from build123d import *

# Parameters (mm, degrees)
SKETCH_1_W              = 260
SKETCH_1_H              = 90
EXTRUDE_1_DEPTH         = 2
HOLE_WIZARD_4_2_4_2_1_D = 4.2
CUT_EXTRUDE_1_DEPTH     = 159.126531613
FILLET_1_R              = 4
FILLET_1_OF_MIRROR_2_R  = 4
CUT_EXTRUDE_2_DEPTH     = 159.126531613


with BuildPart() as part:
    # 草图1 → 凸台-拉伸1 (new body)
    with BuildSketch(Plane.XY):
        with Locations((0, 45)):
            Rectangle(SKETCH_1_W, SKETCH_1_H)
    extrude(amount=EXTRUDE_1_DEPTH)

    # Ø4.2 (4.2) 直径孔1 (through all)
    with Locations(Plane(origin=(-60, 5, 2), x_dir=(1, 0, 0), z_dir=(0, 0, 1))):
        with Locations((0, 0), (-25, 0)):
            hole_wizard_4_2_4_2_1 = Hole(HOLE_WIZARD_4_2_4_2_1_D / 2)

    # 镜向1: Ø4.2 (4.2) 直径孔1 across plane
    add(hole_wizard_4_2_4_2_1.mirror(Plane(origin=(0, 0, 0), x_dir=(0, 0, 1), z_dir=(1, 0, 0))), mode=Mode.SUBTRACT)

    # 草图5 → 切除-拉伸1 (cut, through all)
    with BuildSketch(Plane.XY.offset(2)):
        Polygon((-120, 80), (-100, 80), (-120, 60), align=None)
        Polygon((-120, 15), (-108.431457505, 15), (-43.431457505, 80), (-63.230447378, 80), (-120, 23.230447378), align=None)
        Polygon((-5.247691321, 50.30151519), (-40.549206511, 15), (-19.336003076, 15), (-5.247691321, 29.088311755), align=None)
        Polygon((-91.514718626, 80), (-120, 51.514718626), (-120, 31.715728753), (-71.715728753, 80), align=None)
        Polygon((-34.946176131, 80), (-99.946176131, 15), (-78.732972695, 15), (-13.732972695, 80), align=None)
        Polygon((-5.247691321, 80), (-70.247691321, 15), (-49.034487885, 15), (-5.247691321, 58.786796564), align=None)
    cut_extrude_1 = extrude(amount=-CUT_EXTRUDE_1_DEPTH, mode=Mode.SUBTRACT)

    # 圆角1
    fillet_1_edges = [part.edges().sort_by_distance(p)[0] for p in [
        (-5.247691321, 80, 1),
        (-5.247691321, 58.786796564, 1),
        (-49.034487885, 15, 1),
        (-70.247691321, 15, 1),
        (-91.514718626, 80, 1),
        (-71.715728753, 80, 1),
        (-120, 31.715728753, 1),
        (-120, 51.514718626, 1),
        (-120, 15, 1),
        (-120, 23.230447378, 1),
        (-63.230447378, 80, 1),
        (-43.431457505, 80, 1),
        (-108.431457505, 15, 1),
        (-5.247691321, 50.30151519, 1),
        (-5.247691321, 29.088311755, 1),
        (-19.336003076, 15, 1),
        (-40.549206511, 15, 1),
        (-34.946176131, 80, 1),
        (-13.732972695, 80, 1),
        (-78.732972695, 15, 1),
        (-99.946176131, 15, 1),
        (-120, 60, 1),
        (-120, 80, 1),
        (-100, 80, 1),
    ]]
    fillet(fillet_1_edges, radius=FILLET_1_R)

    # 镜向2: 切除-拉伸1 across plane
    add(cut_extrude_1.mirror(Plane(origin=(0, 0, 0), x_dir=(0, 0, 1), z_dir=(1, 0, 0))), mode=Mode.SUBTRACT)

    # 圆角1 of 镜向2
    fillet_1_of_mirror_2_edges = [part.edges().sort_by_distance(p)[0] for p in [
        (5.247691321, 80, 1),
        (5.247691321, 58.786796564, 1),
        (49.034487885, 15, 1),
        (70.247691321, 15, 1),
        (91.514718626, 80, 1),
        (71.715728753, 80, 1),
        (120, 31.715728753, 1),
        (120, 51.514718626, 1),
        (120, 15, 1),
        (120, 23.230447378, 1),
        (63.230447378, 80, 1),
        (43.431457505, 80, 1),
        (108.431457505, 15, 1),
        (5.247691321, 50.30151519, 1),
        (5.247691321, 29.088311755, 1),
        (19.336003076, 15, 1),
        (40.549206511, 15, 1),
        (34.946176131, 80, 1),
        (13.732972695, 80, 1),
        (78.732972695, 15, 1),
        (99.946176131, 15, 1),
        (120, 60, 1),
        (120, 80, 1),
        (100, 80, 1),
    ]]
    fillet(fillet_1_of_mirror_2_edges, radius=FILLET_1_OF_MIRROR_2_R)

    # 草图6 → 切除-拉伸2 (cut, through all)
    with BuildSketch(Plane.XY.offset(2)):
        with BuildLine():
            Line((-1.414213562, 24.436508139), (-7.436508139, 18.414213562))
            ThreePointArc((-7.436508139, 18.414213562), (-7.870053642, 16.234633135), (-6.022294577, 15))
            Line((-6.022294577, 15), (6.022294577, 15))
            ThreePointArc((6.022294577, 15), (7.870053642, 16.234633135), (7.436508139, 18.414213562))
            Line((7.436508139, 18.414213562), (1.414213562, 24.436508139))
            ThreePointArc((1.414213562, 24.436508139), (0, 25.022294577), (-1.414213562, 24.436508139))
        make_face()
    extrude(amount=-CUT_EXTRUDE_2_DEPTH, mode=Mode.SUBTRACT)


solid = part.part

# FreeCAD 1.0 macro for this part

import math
import FreeCAD as App
import Part
import Sketcher

V = App.Vector


def edges_at(feature, points):
    """Names of the edges that pass closest to the given points."""
    edges = feature.Shape.Edges
    near = lambda p: min(range(len(edges)), key=lambda i: edges[i].distToShape(Part.Vertex(*p))[0])
    return sorted({f"Edge{near(p) + 1}" for p in points})


def add_polygon(sketch, points):
    """Adds a closed chain of lines whose ends are joined by coincident constraints."""
    first, n = sketch.GeometryCount, len(points)
    for a, b in zip(points, points[1:] + points[:1]):
        sketch.addGeometry(Part.LineSegment(App.Vector(*a, 0), App.Vector(*b, 0)), False)
    for i in range(n):
        sketch.addConstraint(Sketcher.Constraint("Coincident", first + i, 2, first + (i + 1) % n, 1))

doc = App.newDocument("Part")
body = doc.addObject("PartDesign::Body", "Body")

# Sketch on XY plane
sketch1 = doc.addObject("Sketcher::SketchObject", "Sketch")
body.addObject(sketch1)
sketch1.AttachmentSupport = (doc.XY_Plane, [""])
sketch1.MapMode = "FlatFace"
add_polygon(sketch1, [(-130, 90), (-130, 0), (130, 0), (130, 90)])  # lines 0-3
sketch1.addConstraint(Sketcher.Constraint("Vertical", 0))
sketch1.addConstraint(Sketcher.Constraint("Horizontal", 1))
sketch1.addConstraint(Sketcher.Constraint("Vertical", 2))
sketch1.addConstraint(Sketcher.Constraint("Horizontal", 3))
sketch1.addConstraint(Sketcher.Constraint("Symmetric", 0, 2, 1, 2, -1, 1))
sketch1.addConstraint(Sketcher.Constraint("DistanceX", 1, 1, 1, 2, 260.0))
sketch1.addConstraint(Sketcher.Constraint("DistanceY", 0, 2, 0, 1, 90.0))
pad1 = doc.addObject("PartDesign::Pad", "Pad")
body.addObject(pad1)
pad1.Profile = sketch1
pad1.Length = 2

# Sketch on XY plane
sketch2 = doc.addObject("Sketcher::SketchObject", "Sketch001")
body.addObject(sketch2)
sketch2.AttachmentSupport = (doc.XY_Plane, [""])
sketch2.MapMode = "FlatFace"
sketch2.AttachmentOffset = App.Placement(V(0, 0, 2), App.Rotation())
sketch2.addGeometry(Part.Circle(V(-60, 5, 0), V(0, 0, 1), 2.1), False)
sketch2.addGeometry(Part.Circle(V(-85, 5, 0), V(0, 0, 1), 2.1), False)
sketch2.addConstraint(Sketcher.Constraint("Equal", 0, 1))
sketch2.addConstraint(Sketcher.Constraint("Horizontal", 0, 3, 1, 3))
sketch2.addConstraint(Sketcher.Constraint("Diameter", 0, 4.2))
sketch2.addConstraint(Sketcher.Constraint("DistanceX", 0, 3, -1, 1, 60.0))
sketch2.addConstraint(Sketcher.Constraint("DistanceY", -1, 1, 0, 3, 5.0))
sketch2.addConstraint(Sketcher.Constraint("DistanceX", 1, 3, -1, 1, 85.0))
doc.recompute()
hole = doc.addObject("PartDesign::Hole", "Hole")
body.addObject(hole)
hole.Profile = sketch2
hole.ThreadType = "None"
hole.Diameter = 4.2
hole.DepthType = "ThroughAll"
doc.recompute()

mirrored = doc.addObject("PartDesign::Mirrored", "Mirrored")
body.addObject(mirrored)
mirrored.Originals = [hole]
mirrored.MirrorPlane = (doc.YZ_Plane, [""])
body.Tip = mirrored

# Sketch on XY plane
sketch3 = doc.addObject("Sketcher::SketchObject", "Sketch002")
body.addObject(sketch3)
sketch3.AttachmentSupport = (doc.XY_Plane, [""])
sketch3.MapMode = "FlatFace"
sketch3.AttachmentOffset = App.Placement(V(0, 0, 2), App.Rotation())
add_polygon(sketch3, [(-100, 80), (-120, 80), (-120, 60)])  # lines 0-2
add_polygon(sketch3, [(-120, 15), (-108, 15), (-43, 80), (-63, 80), (-120, 23)])  # lines 3-7
add_polygon(sketch3, [(-5, 50), (-41, 15), (-19, 15), (-5, 29)])  # lines 8-11
add_polygon(sketch3, [(-92, 80), (-120, 52), (-120, 32), (-72, 80)])  # lines 12-15
add_polygon(sketch3, [(-35, 80), (-100, 15), (-79, 15), (-14, 80)])  # lines 16-19
add_polygon(sketch3, [(-5, 80), (-70, 15), (-49, 15), (-5, 59)])  # lines 20-23
sketch3.addConstraint(Sketcher.Constraint("Horizontal", 0))
sketch3.addConstraint(Sketcher.Constraint("Vertical", 1))
sketch3.addConstraint(Sketcher.Constraint("Horizontal", 3))
sketch3.addConstraint(Sketcher.Constraint("Horizontal", 5))
sketch3.addConstraint(Sketcher.Constraint("Vertical", 7))
sketch3.addConstraint(Sketcher.Constraint("Horizontal", 9))
sketch3.addConstraint(Sketcher.Constraint("Vertical", 11))
sketch3.addConstraint(Sketcher.Constraint("Vertical", 13))
sketch3.addConstraint(Sketcher.Constraint("Horizontal", 15))
sketch3.addConstraint(Sketcher.Constraint("Horizontal", 17))
sketch3.addConstraint(Sketcher.Constraint("Horizontal", 19))
sketch3.addConstraint(Sketcher.Constraint("Horizontal", 21))
sketch3.addConstraint(Sketcher.Constraint("Vertical", 23))
sketch3.addConstraint(Sketcher.Constraint("Parallel", 2, 4))
sketch3.addConstraint(Sketcher.Constraint("Parallel", 4, 6))
sketch3.addConstraint(Sketcher.Constraint("Parallel", 6, 8))
sketch3.addConstraint(Sketcher.Constraint("Parallel", 8, 10))
sketch3.addConstraint(Sketcher.Constraint("Parallel", 10, 12))
sketch3.addConstraint(Sketcher.Constraint("Parallel", 12, 14))
sketch3.addConstraint(Sketcher.Constraint("Parallel", 14, 16))
sketch3.addConstraint(Sketcher.Constraint("Parallel", 16, 18))
sketch3.addConstraint(Sketcher.Constraint("Parallel", 18, 20))
sketch3.addConstraint(Sketcher.Constraint("Parallel", 20, 22))
sketch3.addConstraint(Sketcher.Constraint("Horizontal", 2, 2, 4, 2))
sketch3.addConstraint(Sketcher.Constraint("Horizontal", 7, 2, 8, 2))
sketch3.addConstraint(Sketcher.Constraint("Horizontal", 5, 2, 14, 2))
sketch3.addConstraint(Sketcher.Constraint("Horizontal", 9, 2, 16, 2))
sketch3.addConstraint(Sketcher.Constraint("Horizontal", 15, 2, 18, 2))
sketch3.addConstraint(Sketcher.Constraint("Horizontal", 17, 2, 20, 2))
sketch3.addConstraint(Sketcher.Constraint("Horizontal", 19, 2, 23, 2))
sketch3.addConstraint(Sketcher.Constraint("Vertical", 1, 2, 6, 2))
sketch3.addConstraint(Sketcher.Constraint("Vertical", 7, 2, 12, 2))
sketch3.addConstraint(Sketcher.Constraint("Vertical", 11, 2, 22, 2))
sketch3.addConstraint(Sketcher.Constraint("Equal", 5, 15))
sketch3.addConstraint(Sketcher.Constraint("Equal", 9, 17))
sketch3.addConstraint(Sketcher.Constraint("Equal", 19, 21))
sketch3.addConstraint(Sketcher.Constraint("Equal", 0, 1))
sketch3.addConstraint(Sketcher.Constraint("DistanceX", 0, 2, 0, 1, 20.0))
sketch3.addConstraint(Sketcher.Constraint("DistanceX", 0, 2, -1, 1, 120.0))
sketch3.addConstraint(Sketcher.Constraint("DistanceY", -1, 1, 0, 2, 80.0))
sketch3.addConstraint(Sketcher.Constraint("DistanceY", -1, 1, 3, 2, 15.0))
sketch3.addConstraint(Sketcher.Constraint("DistanceX", 5, 2, 5, 1, 19.79899))
sketch3.addConstraint(Sketcher.Constraint("Distance", 6, 80.284271))
sketch3.addConstraint(Sketcher.Constraint("Distance", 8, 49.923882))
sketch3.addConstraint(Sketcher.Constraint("Distance", 10, 19.923882))
sketch3.addConstraint(Sketcher.Constraint("Distance", 12, 40.284271))
sketch3.addConstraint(Sketcher.Constraint("DistanceX", 10, 2, -1, 1, 5.247691))
sketch3.addConstraint(Sketcher.Constraint("DistanceX", 3, 2, 16, 2, 8.485281))
pocket1 = doc.addObject("PartDesign::Pocket", "Pocket")
body.addObject(pocket1)
pocket1.Profile = sketch3
pocket1.Type = "ThroughAll"
doc.recompute()

fillet = doc.addObject("PartDesign::Fillet", "Fillet")
body.addObject(fillet)
fillet.Base = (pocket1, edges_at(pocket1, [
    (-5.248, 80, 1),
    (-5.248, 58.787, 1),
    (-49.034, 15, 1),
    (-70.248, 15, 1),
    (-91.515, 80, 1),
    (-71.716, 80, 1),
    (-120, 31.716, 1),
    (-120, 51.515, 1),
    (-120, 15, 1),
    (-120, 23.23, 1),
    (-63.23, 80, 1),
    (-43.431, 80, 1),
    (-108.431, 15, 1),
    (-5.248, 50.302, 1),
    (-5.248, 29.088, 1),
    (-19.336, 15, 1),
    (-40.549, 15, 1),
    (-34.946, 80, 1),
    (-13.733, 80, 1),
    (-78.733, 15, 1),
    (-99.946, 15, 1),
    (-120, 60, 1),
    (-120, 80, 1),
    (-100, 80, 1),
]))
fillet.Radius = 4
doc.recompute()

mirrored2 = doc.addObject("PartDesign::Mirrored", "Mirrored001")
body.addObject(mirrored2)
mirrored2.Originals = [pocket1]
mirrored2.MirrorPlane = (doc.YZ_Plane, [""])
body.Tip = mirrored2
doc.recompute()

fillet2 = doc.addObject("PartDesign::Fillet", "Fillet001")
body.addObject(fillet2)
fillet2.Base = (mirrored2, edges_at(mirrored2, [
    (5.248, 80, 1),
    (5.248, 58.787, 1),
    (49.034, 15, 1),
    (70.248, 15, 1),
    (91.515, 80, 1),
    (71.716, 80, 1),
    (120, 31.716, 1),
    (120, 51.515, 1),
    (120, 15, 1),
    (120, 23.23, 1),
    (63.23, 80, 1),
    (43.431, 80, 1),
    (108.431, 15, 1),
    (5.248, 50.302, 1),
    (5.248, 29.088, 1),
    (19.336, 15, 1),
    (40.549, 15, 1),
    (34.946, 80, 1),
    (13.733, 80, 1),
    (78.733, 15, 1),
    (99.946, 15, 1),
    (120, 60, 1),
    (120, 80, 1),
    (100, 80, 1),
]))
fillet2.Radius = 4

# Sketch on XY plane
sketch4 = doc.addObject("Sketcher::SketchObject", "Sketch003")
body.addObject(sketch4)
sketch4.AttachmentSupport = (doc.XY_Plane, [""])
sketch4.MapMode = "FlatFace"
sketch4.AttachmentOffset = App.Placement(V(0, 0, 2), App.Rotation())
sketch4.addGeometry(Part.LineSegment(V(-1.4, 24.4, 0), V(-7.4, 18.4, 0)), False)
sketch4.addGeometry(Part.ArcOfCircle(Part.Circle(V(-6, 17, 0), V(0, 0, 1), 2), math.radians(135), math.radians(270)), False)
sketch4.addGeometry(Part.LineSegment(V(-6, 15, 0), V(6, 15, 0)), False)
sketch4.addGeometry(Part.ArcOfCircle(Part.Circle(V(6, 17, 0), V(0, 0, 1), 2), math.radians(-90), math.radians(45)), False)
sketch4.addGeometry(Part.LineSegment(V(7.4, 18.4, 0), V(1.4, 24.4, 0)), False)
sketch4.addGeometry(Part.ArcOfCircle(Part.Circle(V(0, 23, 0), V(0, 0, 1), 2), math.radians(45), math.radians(135)), False)
sketch4.addConstraint(Sketcher.Constraint("Tangent", 0, 2, 1, 1))
sketch4.addConstraint(Sketcher.Constraint("Tangent", 1, 2, 2, 1))
sketch4.addConstraint(Sketcher.Constraint("Tangent", 2, 2, 3, 1))
sketch4.addConstraint(Sketcher.Constraint("Tangent", 3, 2, 4, 1))
sketch4.addConstraint(Sketcher.Constraint("Tangent", 4, 2, 5, 1))
sketch4.addConstraint(Sketcher.Constraint("Tangent", 5, 2, 0, 1))
sketch4.addConstraint(Sketcher.Constraint("Horizontal", 2))
sketch4.addConstraint(Sketcher.Constraint("Equal", 1, 3))
sketch4.addConstraint(Sketcher.Constraint("Equal", 3, 5))
sketch4.addConstraint(Sketcher.Constraint("Symmetric", 0, 2, 3, 2, -2))
sketch4.addConstraint(Sketcher.Constraint("Perpendicular", 0, 4))
sketch4.addConstraint(Sketcher.Constraint("Radius", 1, 2.0))
sketch4.addConstraint(Sketcher.Constraint("DistanceY", -1, 1, 1, 3, 17.0))
sketch4.addConstraint(Sketcher.Constraint("DistanceX", 2, 1, 2, 2, 12.044589))
pocket2 = doc.addObject("PartDesign::Pocket", "Pocket001")
body.addObject(pocket2)
pocket2.Profile = sketch4
pocket2.Type = "ThroughAll"

doc.recompute()
